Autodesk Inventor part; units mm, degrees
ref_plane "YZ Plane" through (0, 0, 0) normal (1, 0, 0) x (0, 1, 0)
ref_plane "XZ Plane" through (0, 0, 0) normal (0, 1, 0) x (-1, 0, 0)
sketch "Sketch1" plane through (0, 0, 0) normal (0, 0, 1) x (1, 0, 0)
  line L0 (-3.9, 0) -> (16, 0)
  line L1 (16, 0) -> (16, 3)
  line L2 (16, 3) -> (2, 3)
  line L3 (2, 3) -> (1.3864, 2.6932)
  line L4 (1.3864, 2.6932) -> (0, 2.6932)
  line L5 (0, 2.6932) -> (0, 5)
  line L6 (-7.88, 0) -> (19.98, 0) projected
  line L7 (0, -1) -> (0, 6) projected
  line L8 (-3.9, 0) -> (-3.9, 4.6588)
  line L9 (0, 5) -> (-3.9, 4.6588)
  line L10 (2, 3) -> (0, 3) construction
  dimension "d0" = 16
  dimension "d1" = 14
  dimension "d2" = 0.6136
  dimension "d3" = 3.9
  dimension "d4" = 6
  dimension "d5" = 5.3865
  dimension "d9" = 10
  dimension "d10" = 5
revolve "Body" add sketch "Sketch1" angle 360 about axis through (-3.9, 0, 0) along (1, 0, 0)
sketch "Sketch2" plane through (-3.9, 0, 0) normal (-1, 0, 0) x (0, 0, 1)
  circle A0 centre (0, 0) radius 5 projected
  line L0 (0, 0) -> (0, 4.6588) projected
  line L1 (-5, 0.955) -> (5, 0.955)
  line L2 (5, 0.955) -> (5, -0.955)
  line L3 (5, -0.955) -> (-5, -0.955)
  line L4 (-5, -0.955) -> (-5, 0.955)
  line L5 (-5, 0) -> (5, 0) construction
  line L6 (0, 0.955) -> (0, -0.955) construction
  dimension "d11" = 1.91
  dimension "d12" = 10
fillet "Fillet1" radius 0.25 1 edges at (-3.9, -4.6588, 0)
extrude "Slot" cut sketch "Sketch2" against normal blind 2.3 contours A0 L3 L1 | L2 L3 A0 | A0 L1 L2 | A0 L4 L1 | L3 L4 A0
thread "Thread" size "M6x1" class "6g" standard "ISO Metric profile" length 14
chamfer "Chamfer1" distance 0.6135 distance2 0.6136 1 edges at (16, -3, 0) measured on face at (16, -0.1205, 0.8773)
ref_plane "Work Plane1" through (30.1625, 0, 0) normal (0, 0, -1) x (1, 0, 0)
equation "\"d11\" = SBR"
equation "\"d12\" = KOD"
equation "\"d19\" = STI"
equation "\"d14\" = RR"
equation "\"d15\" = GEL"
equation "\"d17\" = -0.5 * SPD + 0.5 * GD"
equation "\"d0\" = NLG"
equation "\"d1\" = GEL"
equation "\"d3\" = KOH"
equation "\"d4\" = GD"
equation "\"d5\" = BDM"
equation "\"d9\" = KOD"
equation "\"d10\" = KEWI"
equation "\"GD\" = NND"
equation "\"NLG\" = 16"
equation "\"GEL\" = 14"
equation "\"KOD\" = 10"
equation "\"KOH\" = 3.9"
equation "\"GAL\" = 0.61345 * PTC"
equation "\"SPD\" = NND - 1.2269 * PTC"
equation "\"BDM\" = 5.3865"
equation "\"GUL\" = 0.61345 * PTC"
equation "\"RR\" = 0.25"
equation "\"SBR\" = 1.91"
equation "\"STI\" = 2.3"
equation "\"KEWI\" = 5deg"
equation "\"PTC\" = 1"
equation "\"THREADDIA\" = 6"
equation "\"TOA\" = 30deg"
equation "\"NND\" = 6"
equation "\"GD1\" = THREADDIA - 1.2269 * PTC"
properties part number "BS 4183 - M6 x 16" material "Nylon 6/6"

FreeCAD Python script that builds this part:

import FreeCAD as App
import Part
import Sketcher
Q = App.Units.Quantity


def edges_at(feature, points):
    """Names of the edges that pass closest to the given points."""
    edges = feature.Shape.Edges
    near = lambda p: min(range(len(edges)), key=lambda i: edges[i].distToShape(Part.Vertex(*p))[0])
    return sorted({f"Edge{near(p) + 1}" for p in points})


def add_polygon(sketch, points):
    """Adds a closed chain of lines whose ends are joined by coincident constraints."""
    first, n = sketch.GeometryCount, len(points)
    for a, b in zip(points, points[1:] + points[:1]):
        sketch.addGeometry(Part.LineSegment(App.Vector(*a, 0), App.Vector(*b, 0)), False)
    for i in range(n):
        sketch.addConstraint(Sketcher.Constraint("Coincident", first + i, 2, first + (i + 1) % n, 1))

doc = App.newDocument("Part")
body = doc.addObject("PartDesign::Body", "Body")

# Sketch on XY plane
sketch1 = doc.addObject("Sketcher::SketchObject", "Sketch")
body.addObject(sketch1)
sketch1.AttachmentSupport = (doc.XY_Plane, [""])
sketch1.MapMode = "FlatFace"
add_polygon(sketch1, [(-3.9, 4.6588), (-3.9, 0), (16, 0), (16, 3), (2, 3), (1.3864, 2.6932), (0, 2.6932), (0, 5)])  # lines 0-7
sketch1.addConstraint([
    Sketcher.Constraint("Vertical", 0),
    Sketcher.Constraint("Horizontal", 1),
    Sketcher.Constraint("Vertical", 2),
    Sketcher.Constraint("Horizontal", 3),
    Sketcher.Constraint("Horizontal", 5),
    Sketcher.Constraint("Vertical", 6),
    Sketcher.Constraint("PointOnObject", 0, 2, -1),
    Sketcher.Constraint("PointOnObject", 5, 2, -2),
    Sketcher.Constraint("DistanceX", 3, 2, 3, 1, Q("14 mm")),
    Sketcher.Constraint("DistanceX", -1, 1, 1, 2, Q("16 mm")),
    Sketcher.Constraint("DistanceY", -1, 1, 6, 2, Q("5 mm")),
    Sketcher.Constraint("DistanceX", 0, 2, -1, 1, Q("3.9 mm")),
    Sketcher.Constraint("DistanceY", 2, 1, 2, 2, Q("3 mm")),
    Sketcher.Constraint("Angle", 7, Q("-175 deg")),
    Sketcher.Constraint("DistanceX", 4, 2, 3, 2, Q("0.6136 mm")),
    Sketcher.Constraint("Distance", 4, Q("0.686 mm")),
])
revolution = doc.addObject("PartDesign::Revolution", "Revolution")
body.addObject(revolution)
revolution.Profile = sketch1
revolution.ReferenceAxis = (sketch1, ["H_Axis"])
revolution.Angle = 360
doc.recompute()

fillet = doc.addObject("PartDesign::Fillet", "Fillet")
body.addObject(fillet)
fillet.Base = (revolution, edges_at(revolution, [(-3.9, -4.659, 0)]))
fillet.Radius = 0.25

# Sketch on YZ plane
sketch2 = doc.addObject("Sketcher::SketchObject", "Sketch001")
body.addObject(sketch2)
sketch2.AttachmentSupport = (doc.YZ_Plane, [""])
sketch2.MapMode = "FlatFace"
sketch2.AttachmentOffset = App.Placement(App.Vector(0, 0, -3.9), App.Rotation())
add_polygon(sketch2, [(-0.955, 5), (0.955, 5), (0.955, -5), (-0.955, -5)])  # lines 0-3
sketch2.addConstraint([
    Sketcher.Constraint("Horizontal", 0),
    Sketcher.Constraint("Vertical", 1),
    Sketcher.Constraint("Horizontal", 2),
    Sketcher.Constraint("Vertical", 3),
    Sketcher.Constraint("Symmetric", 0, 2, 2, 2, -1, 1),
    Sketcher.Constraint("DistanceY", 1, 2, 1, 1, Q("10 mm")),
    Sketcher.Constraint("DistanceX", 0, 1, 0, 2, Q("1.91 mm")),
])
pocket1 = doc.addObject("PartDesign::Pocket", "Pocket")
body.addObject(pocket1)
pocket1.Profile = sketch2
pocket1.Length = 2.3
pocket1.Reversed = True
doc.recompute()

chamfer = doc.addObject("PartDesign::Chamfer", "Chamfer")
body.addObject(chamfer)
chamfer.Base = (pocket1, edges_at(pocket1, [(16, -3, 0)]))
chamfer.ChamferType = "Two distances"
chamfer.Size = 0.6135
chamfer.Size2 = 0.6136

doc.recompute()
